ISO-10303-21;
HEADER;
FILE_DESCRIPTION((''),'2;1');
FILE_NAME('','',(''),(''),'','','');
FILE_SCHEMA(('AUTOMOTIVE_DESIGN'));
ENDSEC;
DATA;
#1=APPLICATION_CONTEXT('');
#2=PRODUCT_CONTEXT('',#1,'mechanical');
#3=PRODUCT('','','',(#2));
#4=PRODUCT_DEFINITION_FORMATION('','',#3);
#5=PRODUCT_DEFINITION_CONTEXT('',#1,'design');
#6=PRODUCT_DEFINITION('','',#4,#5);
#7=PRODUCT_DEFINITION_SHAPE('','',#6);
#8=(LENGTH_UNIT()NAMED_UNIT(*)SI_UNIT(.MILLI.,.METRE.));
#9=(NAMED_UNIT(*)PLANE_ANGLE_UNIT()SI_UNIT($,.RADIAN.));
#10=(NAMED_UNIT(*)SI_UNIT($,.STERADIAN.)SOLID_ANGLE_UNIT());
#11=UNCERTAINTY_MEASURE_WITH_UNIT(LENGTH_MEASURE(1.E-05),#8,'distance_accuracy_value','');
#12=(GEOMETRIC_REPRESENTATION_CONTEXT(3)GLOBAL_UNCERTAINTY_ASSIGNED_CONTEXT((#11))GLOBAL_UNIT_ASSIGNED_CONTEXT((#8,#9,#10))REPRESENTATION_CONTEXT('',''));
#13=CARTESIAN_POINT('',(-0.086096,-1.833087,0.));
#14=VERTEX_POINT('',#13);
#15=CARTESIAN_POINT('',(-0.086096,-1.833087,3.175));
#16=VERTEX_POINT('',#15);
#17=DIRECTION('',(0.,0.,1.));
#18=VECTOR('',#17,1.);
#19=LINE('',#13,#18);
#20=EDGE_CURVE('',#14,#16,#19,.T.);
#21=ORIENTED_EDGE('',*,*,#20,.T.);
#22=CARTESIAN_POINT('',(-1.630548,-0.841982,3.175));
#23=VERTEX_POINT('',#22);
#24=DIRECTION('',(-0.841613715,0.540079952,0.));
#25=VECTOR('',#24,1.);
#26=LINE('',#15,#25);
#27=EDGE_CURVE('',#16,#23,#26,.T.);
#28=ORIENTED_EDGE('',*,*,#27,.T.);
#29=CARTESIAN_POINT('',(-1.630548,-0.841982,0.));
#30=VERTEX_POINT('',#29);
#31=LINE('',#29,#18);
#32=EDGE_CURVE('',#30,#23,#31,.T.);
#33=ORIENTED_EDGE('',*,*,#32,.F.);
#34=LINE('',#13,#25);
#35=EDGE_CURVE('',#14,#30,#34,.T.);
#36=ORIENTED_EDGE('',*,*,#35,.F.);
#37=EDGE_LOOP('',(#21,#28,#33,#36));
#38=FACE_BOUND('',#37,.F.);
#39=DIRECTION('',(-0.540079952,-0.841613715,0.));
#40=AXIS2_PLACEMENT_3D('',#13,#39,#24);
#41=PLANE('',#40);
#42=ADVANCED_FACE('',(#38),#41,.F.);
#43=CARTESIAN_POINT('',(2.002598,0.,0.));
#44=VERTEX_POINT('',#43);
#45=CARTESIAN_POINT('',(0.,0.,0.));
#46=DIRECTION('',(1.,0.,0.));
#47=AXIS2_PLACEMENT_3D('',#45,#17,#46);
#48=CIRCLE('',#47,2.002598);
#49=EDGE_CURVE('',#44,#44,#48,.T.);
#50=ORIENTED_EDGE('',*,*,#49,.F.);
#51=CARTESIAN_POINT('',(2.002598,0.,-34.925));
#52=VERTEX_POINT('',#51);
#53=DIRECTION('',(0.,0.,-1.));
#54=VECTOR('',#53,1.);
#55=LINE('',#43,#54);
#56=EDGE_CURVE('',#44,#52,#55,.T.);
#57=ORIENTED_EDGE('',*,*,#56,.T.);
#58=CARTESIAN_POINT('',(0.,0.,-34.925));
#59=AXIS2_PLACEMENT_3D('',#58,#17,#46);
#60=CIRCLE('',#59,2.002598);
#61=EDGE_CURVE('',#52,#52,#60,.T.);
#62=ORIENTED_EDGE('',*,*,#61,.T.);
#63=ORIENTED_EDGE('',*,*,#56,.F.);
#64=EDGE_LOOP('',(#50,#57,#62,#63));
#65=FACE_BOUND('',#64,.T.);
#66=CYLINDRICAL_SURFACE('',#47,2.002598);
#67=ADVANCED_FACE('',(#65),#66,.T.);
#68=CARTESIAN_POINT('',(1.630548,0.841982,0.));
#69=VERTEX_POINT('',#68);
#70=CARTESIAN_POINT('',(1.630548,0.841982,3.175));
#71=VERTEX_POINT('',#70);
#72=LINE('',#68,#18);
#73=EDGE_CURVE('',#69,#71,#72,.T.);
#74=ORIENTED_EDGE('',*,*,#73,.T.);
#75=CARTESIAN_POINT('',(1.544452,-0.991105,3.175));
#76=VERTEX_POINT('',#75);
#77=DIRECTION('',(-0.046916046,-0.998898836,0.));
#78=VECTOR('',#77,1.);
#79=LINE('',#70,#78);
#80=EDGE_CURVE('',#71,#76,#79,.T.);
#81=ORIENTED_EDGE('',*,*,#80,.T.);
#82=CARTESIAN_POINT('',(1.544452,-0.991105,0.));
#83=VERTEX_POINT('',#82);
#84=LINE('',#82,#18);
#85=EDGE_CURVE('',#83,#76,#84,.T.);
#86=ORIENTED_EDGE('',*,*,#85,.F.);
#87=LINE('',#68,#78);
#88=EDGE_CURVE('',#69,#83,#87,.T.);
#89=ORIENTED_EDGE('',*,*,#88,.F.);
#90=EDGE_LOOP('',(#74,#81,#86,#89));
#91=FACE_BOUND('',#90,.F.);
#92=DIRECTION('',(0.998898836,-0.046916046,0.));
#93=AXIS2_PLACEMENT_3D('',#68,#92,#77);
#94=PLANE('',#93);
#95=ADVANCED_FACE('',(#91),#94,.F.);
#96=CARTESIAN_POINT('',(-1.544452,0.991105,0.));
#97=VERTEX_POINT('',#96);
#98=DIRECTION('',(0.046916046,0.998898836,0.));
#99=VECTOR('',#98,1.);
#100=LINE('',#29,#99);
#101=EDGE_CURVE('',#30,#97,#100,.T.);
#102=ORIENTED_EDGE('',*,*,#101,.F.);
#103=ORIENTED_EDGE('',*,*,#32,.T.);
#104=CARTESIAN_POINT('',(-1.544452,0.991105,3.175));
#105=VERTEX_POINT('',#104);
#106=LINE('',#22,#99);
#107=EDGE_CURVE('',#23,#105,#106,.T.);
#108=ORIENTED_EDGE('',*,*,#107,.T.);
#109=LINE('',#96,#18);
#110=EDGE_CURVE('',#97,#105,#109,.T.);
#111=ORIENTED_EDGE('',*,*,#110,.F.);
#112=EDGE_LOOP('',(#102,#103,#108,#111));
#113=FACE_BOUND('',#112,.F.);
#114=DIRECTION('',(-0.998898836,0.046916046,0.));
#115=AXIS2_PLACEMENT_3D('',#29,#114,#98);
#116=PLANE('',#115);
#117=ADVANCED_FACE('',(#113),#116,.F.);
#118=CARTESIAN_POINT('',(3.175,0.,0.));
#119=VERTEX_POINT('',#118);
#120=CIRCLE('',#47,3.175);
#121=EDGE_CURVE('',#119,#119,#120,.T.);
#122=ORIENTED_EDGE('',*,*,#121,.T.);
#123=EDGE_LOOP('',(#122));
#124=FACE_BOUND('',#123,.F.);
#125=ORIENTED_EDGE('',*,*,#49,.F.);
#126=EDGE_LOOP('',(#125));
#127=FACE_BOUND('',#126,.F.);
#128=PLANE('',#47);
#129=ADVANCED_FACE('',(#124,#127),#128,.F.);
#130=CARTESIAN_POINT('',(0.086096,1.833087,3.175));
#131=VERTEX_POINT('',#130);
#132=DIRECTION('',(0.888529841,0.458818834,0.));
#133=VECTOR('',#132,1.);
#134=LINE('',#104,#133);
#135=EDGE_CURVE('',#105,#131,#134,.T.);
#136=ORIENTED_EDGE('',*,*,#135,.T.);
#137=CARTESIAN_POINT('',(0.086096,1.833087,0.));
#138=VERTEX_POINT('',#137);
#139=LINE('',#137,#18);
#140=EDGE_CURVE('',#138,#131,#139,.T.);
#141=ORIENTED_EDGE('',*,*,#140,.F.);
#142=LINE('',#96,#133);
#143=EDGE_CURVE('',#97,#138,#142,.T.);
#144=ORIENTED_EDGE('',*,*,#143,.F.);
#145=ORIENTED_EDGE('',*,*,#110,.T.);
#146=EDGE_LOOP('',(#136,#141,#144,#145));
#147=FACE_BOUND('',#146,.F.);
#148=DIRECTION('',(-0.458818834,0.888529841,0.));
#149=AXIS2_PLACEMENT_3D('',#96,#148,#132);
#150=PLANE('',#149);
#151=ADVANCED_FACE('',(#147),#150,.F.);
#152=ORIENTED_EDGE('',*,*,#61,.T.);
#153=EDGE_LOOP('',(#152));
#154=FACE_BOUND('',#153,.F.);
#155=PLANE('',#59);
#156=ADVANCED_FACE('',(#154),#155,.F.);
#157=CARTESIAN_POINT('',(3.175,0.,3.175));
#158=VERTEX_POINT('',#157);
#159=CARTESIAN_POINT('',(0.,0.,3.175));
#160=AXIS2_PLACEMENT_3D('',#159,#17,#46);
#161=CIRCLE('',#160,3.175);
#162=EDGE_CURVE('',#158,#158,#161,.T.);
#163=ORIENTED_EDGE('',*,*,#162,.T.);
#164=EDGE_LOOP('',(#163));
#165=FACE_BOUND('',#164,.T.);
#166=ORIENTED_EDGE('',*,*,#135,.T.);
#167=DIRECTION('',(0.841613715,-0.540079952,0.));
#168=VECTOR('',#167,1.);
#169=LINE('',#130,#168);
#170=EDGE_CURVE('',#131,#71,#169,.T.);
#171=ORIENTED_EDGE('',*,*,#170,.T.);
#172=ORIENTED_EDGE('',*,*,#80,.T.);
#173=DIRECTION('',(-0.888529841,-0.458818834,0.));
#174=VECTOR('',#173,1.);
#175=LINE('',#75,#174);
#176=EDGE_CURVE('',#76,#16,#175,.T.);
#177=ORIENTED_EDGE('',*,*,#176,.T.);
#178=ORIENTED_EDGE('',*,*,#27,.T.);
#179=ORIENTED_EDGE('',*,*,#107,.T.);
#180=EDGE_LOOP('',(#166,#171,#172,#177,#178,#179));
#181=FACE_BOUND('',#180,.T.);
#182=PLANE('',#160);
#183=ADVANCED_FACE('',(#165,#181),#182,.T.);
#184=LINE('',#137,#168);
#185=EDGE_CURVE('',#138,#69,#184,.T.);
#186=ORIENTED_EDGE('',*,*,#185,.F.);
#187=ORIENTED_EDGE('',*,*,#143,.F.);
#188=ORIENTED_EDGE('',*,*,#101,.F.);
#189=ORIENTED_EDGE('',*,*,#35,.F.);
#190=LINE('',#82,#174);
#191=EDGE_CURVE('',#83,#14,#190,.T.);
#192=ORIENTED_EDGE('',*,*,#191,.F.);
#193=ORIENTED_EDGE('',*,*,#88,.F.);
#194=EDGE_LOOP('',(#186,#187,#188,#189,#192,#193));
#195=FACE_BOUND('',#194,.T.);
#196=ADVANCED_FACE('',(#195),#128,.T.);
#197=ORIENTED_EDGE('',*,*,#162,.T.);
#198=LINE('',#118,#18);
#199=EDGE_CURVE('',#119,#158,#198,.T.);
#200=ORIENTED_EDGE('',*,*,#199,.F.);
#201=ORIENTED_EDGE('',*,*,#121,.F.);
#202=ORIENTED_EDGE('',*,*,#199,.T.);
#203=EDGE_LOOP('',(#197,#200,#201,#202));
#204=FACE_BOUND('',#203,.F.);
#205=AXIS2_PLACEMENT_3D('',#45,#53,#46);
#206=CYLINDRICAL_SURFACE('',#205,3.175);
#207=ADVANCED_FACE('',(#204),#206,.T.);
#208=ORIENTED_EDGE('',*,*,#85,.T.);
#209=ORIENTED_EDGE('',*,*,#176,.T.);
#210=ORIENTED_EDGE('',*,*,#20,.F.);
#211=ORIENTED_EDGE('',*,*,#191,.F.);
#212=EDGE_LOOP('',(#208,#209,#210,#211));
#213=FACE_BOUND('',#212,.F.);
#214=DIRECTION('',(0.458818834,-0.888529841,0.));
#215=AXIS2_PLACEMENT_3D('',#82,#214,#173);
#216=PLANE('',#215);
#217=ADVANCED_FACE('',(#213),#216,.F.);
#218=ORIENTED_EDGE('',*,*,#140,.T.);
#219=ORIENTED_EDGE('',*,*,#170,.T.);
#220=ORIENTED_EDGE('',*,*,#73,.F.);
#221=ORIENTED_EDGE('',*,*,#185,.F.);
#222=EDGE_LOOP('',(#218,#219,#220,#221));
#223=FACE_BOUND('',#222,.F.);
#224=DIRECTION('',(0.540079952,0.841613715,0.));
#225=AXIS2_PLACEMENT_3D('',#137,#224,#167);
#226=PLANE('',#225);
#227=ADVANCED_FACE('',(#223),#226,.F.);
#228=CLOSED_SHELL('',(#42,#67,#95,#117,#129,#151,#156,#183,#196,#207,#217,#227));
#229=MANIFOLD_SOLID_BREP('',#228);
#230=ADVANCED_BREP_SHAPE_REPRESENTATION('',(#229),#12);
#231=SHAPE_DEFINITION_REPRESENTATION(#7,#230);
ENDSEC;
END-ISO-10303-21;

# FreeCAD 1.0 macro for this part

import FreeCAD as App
import Part
import Sketcher
from FreeCAD import Vector
Q = App.Units.Quantity


def add_polygon(sketch, points):
    """Adds a closed chain of lines whose ends are joined by coincident constraints."""
    first, n = sketch.GeometryCount, len(points)
    for a, b in zip(points, points[1:] + points[:1]):
        sketch.addGeometry(Part.LineSegment(App.Vector(*a, 0), App.Vector(*b, 0)), False)
    for i in range(n):
        sketch.addConstraint(Sketcher.Constraint("Coincident", first + i, 2, first + (i + 1) % n, 1))

doc = App.newDocument("Part")
body = doc.addObject("PartDesign::Body", "Body")

sketch1 = body.newObject("Sketcher::SketchObject", "Sketch")
sketch1.AttachmentSupport = (doc.getObject("XY_Plane"), [""])
sketch1.MapMode = "FlatFace"
sketch1.addGeometry(Part.Circle(Vector(0, 0, 0), Vector(0, 0, 1), 3.2), False)
add_polygon(sketch1, [(-1.6, -0.8), (-1.5, 1), (0.1, 1.8), (1.6, 0.8), (1.5, -1), (-0.1, -1.8)])
sketch1.addConstraint(Sketcher.Constraint("Coincident", 0, 3, -1, 1))
sketch1.addConstraint(Sketcher.Constraint("Symmetric", 1, 2, 4, 2, -1, 1))
sketch1.addConstraint(Sketcher.Constraint("Symmetric", 2, 2, 5, 2, -1, 1))
sketch1.addConstraint(Sketcher.Constraint("Symmetric", 3, 2, 6, 2, -1, 1))
sketch1.addConstraint(Sketcher.Constraint("Equal", 1, 2))
sketch1.addConstraint(Sketcher.Constraint("Equal", 2, 3))
sketch1.addConstraint(Sketcher.Constraint("Diameter", 0, Q("0.25 in")))
sketch1.addConstraint(Sketcher.Constraint("DistanceX", 1, 2, 3, 2, Q("0.125 in")))
sketch1.addConstraint(Sketcher.Constraint("DistanceX", 1, 2, -1, 1, 1.544452))
sketch1.addConstraint(Sketcher.Constraint("DistanceY", 1, 2, 2, 2, 0.841982))
sketch1.addConstraint(Sketcher.Constraint("DistanceY", 4, 2, 2, 2, 2.824192))
pad1 = body.newObject("PartDesign::Pad", "Pad")
pad1.Profile = sketch1
pad1.Length = Q("0.125 in")

sketch2 = body.newObject("Sketcher::SketchObject", "Sketch001")
sketch2.AttachmentSupport = (doc.getObject("XY_Plane"), [""])
sketch2.MapMode = "FlatFace"
sketch2.addGeometry(Part.Circle(Vector(0, 0, 0), Vector(0, 0, 1), 2), False)
sketch2.addConstraint(Sketcher.Constraint("Coincident", 0, 3, -1, 1))
sketch2.addConstraint(Sketcher.Constraint("Diameter", 0, 4.005196))
pad2 = body.newObject("PartDesign::Pad", "Pad001")
pad2.Profile = sketch2
pad2.Length = Q("1.375 in")
pad2.Reversed = True

doc.recompute()
